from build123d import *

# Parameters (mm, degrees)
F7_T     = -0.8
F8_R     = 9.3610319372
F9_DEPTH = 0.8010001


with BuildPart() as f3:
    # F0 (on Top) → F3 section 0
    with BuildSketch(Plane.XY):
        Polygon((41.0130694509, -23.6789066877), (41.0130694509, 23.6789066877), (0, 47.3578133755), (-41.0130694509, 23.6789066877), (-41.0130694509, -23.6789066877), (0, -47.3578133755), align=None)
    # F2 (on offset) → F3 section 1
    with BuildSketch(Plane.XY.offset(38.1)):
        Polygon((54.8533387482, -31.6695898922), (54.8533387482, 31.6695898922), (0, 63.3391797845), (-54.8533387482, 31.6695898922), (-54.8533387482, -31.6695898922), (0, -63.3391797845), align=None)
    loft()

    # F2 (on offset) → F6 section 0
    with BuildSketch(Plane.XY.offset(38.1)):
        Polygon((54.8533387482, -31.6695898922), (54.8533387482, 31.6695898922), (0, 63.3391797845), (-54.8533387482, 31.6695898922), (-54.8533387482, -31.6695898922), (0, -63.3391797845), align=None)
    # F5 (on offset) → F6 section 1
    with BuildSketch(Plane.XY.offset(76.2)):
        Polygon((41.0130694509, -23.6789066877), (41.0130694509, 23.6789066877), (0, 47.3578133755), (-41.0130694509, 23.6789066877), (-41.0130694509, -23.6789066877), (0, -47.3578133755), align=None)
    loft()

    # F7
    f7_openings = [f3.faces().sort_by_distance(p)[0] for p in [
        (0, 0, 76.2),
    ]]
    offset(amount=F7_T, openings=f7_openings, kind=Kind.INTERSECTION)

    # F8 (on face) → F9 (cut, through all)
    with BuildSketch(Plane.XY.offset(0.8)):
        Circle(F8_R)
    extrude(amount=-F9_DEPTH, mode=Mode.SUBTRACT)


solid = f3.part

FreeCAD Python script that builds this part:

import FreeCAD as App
import Part
import Sketcher
Q = App.Units.Quantity


def faces_at(feature, points):
    """Names of the faces that lie closest to the given points."""
    faces = feature.Shape.Faces
    near = lambda p: min(range(len(faces)), key=lambda i: faces[i].distToShape(Part.Vertex(*p))[0])
    return sorted({f"Face{near(p) + 1}" for p in points})

doc = App.newDocument("Part")
body = doc.addObject("PartDesign::Body", "Body")

# Sketch on XY plane
sketch1 = body.newObject("Sketcher::SketchObject", "Sketch")
sketch1.AttachmentSupport = (doc.getObject("XY_Plane"), [""])
sketch1.MapMode = "FlatFace"
sketch1.addGeometry([
    Part.LineSegment(App.Vector(41.013069, -23.678907, 0), App.Vector(41.013069, 23.678907, 0)),  # 0
    Part.LineSegment(App.Vector(41.013069, 23.678907, 0), App.Vector(0, 47.357813, 0)),  # 1
    Part.LineSegment(App.Vector(0, 47.357813, 0), App.Vector(-41.013069, 23.678907, 0)),  # 2
    Part.LineSegment(App.Vector(-41.013069, 23.678907, 0), App.Vector(-41.013069, -23.678907, 0)),  # 3
    Part.LineSegment(App.Vector(-41.013069, -23.678907, 0), App.Vector(0, -47.357813, 0)),  # 4
    Part.LineSegment(App.Vector(0, -47.357813, 0), App.Vector(41.013069, -23.678907, 0)),  # 5
], False)
sketch1.addConstraint([
    Sketcher.Constraint("Coincident", 0, 2, 1, 1),
    Sketcher.Constraint("Coincident", 1, 2, 2, 1),
    Sketcher.Constraint("Coincident", 2, 2, 3, 1),
    Sketcher.Constraint("Coincident", 3, 2, 4, 1),
    Sketcher.Constraint("Coincident", 4, 2, 5, 1),
    Sketcher.Constraint("Coincident", 5, 2, 0, 1),
    Sketcher.Constraint("Vertical", 0),
    Sketcher.Constraint("Vertical", 3),
    Sketcher.Constraint("Symmetric", 0, 2, 3, 2, -1, 1),
    Sketcher.Constraint("Symmetric", 1, 2, 4, 2, -1, 1),
    Sketcher.Constraint("PointOnObject", 1, 2, -2),
    Sketcher.Constraint("Parallel", 2, 5),
    Sketcher.Constraint("Horizontal", 0, 2, 2, 2),
    Sketcher.Constraint("Angle", 1, Q("150 deg")),
    Sketcher.Constraint("DistanceY", 0, 1, 0, 2, Q("47.357813 mm")),
    Sketcher.Constraint("DistanceX", -1, 1, 0, 2, Q("41.013069 mm")),
])

# Sketch on XY plane
sketch2 = body.newObject("Sketcher::SketchObject", "Sketch001")
sketch2.AttachmentSupport = (doc.getObject("XY_Plane"), [""])
sketch2.MapMode = "FlatFace"
sketch2.AttachmentOffset = App.Placement(App.Vector(0, 0, 38.1), App.Rotation())
sketch2.addGeometry([
    Part.LineSegment(App.Vector(54.853339, -31.66959, 0), App.Vector(54.853339, 31.66959, 0)),  # 0
    Part.LineSegment(App.Vector(54.853339, 31.66959, 0), App.Vector(0, 63.33918, 0)),  # 1
    Part.LineSegment(App.Vector(0, 63.33918, 0), App.Vector(-54.853339, 31.66959, 0)),  # 2
    Part.LineSegment(App.Vector(-54.853339, 31.66959, 0), App.Vector(-54.853339, -31.66959, 0)),  # 3
    Part.LineSegment(App.Vector(-54.853339, -31.66959, 0), App.Vector(0, -63.33918, 0)),  # 4
    Part.LineSegment(App.Vector(0, -63.33918, 0), App.Vector(54.853339, -31.66959, 0)),  # 5
], False)
sketch2.addConstraint([
    Sketcher.Constraint("Coincident", 0, 2, 1, 1),
    Sketcher.Constraint("Coincident", 1, 2, 2, 1),
    Sketcher.Constraint("Coincident", 2, 2, 3, 1),
    Sketcher.Constraint("Coincident", 3, 2, 4, 1),
    Sketcher.Constraint("Coincident", 4, 2, 5, 1),
    Sketcher.Constraint("Coincident", 5, 2, 0, 1),
    Sketcher.Constraint("Vertical", 0),
    Sketcher.Constraint("Vertical", 3),
    Sketcher.Constraint("Symmetric", 0, 2, 3, 2, -1, 1),
    Sketcher.Constraint("Symmetric", 1, 2, 4, 2, -1, 1),
    Sketcher.Constraint("PointOnObject", 1, 2, -2),
    Sketcher.Constraint("Parallel", 2, 5),
    Sketcher.Constraint("Horizontal", 0, 2, 2, 2),
    Sketcher.Constraint("Angle", 1, Q("150 deg")),
    Sketcher.Constraint("DistanceY", 0, 1, 0, 2, Q("63.33918 mm")),
    Sketcher.Constraint("Distance", 1, Q("63.33918 mm")),
])

additiveloft = body.newObject("PartDesign::AdditiveLoft", "AdditiveLoft")
additiveloft.Profile = sketch1
additiveloft.Sections = [sketch2]

# Sketch on XY plane
sketch3 = body.newObject("Sketcher::SketchObject", "Sketch002")
sketch3.AttachmentSupport = (doc.getObject("XY_Plane"), [""])
sketch3.MapMode = "FlatFace"
sketch3.AttachmentOffset = App.Placement(App.Vector(0, 0, 38.1), App.Rotation())
sketch3.addGeometry([
    Part.LineSegment(App.Vector(54.853339, -31.66959, 0), App.Vector(54.853339, 31.66959, 0)),  # 0
    Part.LineSegment(App.Vector(54.853339, 31.66959, 0), App.Vector(0, 63.33918, 0)),  # 1
    Part.LineSegment(App.Vector(0, 63.33918, 0), App.Vector(-54.853339, 31.66959, 0)),  # 2
    Part.LineSegment(App.Vector(-54.853339, 31.66959, 0), App.Vector(-54.853339, -31.66959, 0)),  # 3
    Part.LineSegment(App.Vector(-54.853339, -31.66959, 0), App.Vector(0, -63.33918, 0)),  # 4
    Part.LineSegment(App.Vector(0, -63.33918, 0), App.Vector(54.853339, -31.66959, 0)),  # 5
], False)
sketch3.addConstraint([
    Sketcher.Constraint("Coincident", 0, 2, 1, 1),
    Sketcher.Constraint("Coincident", 1, 2, 2, 1),
    Sketcher.Constraint("Coincident", 2, 2, 3, 1),
    Sketcher.Constraint("Coincident", 3, 2, 4, 1),
    Sketcher.Constraint("Coincident", 4, 2, 5, 1),
    Sketcher.Constraint("Coincident", 5, 2, 0, 1),
    Sketcher.Constraint("Vertical", 0),
    Sketcher.Constraint("Vertical", 3),
    Sketcher.Constraint("Symmetric", 0, 2, 3, 2, -1, 1),
    Sketcher.Constraint("Symmetric", 1, 2, 4, 2, -1, 1),
    Sketcher.Constraint("PointOnObject", 1, 2, -2),
    Sketcher.Constraint("Parallel", 2, 5),
    Sketcher.Constraint("Horizontal", 0, 2, 2, 2),
    Sketcher.Constraint("Angle", 1, Q("150 deg")),
    Sketcher.Constraint("DistanceY", 0, 1, 0, 2, Q("63.33918 mm")),
    Sketcher.Constraint("Distance", 1, Q("63.33918 mm")),
])

# Sketch on XY plane
sketch4 = body.newObject("Sketcher::SketchObject", "Sketch003")
sketch4.AttachmentSupport = (doc.getObject("XY_Plane"), [""])
sketch4.MapMode = "FlatFace"
sketch4.AttachmentOffset = App.Placement(App.Vector(0, 0, 76.2), App.Rotation())
sketch4.addGeometry([
    Part.LineSegment(App.Vector(41.013069, -23.678907, 0), App.Vector(41.013069, 23.678907, 0)),  # 0
    Part.LineSegment(App.Vector(41.013069, 23.678907, 0), App.Vector(0, 47.357813, 0)),  # 1
    Part.LineSegment(App.Vector(0, 47.357813, 0), App.Vector(-41.013069, 23.678907, 0)),  # 2
    Part.LineSegment(App.Vector(-41.013069, 23.678907, 0), App.Vector(-41.013069, -23.678907, 0)),  # 3
    Part.LineSegment(App.Vector(-41.013069, -23.678907, 0), App.Vector(0, -47.357813, 0)),  # 4
    Part.LineSegment(App.Vector(0, -47.357813, 0), App.Vector(41.013069, -23.678907, 0)),  # 5
], False)
sketch4.addConstraint([
    Sketcher.Constraint("Coincident", 0, 2, 1, 1),
    Sketcher.Constraint("Coincident", 1, 2, 2, 1),
    Sketcher.Constraint("Coincident", 2, 2, 3, 1),
    Sketcher.Constraint("Coincident", 3, 2, 4, 1),
    Sketcher.Constraint("Coincident", 4, 2, 5, 1),
    Sketcher.Constraint("Coincident", 5, 2, 0, 1),
    Sketcher.Constraint("Vertical", 0),
    Sketcher.Constraint("Vertical", 3),
    Sketcher.Constraint("Symmetric", 0, 2, 3, 2, -1, 1),
    Sketcher.Constraint("Symmetric", 1, 2, 4, 2, -1, 1),
    Sketcher.Constraint("PointOnObject", 1, 2, -2),
    Sketcher.Constraint("Parallel", 2, 5),
    Sketcher.Constraint("Horizontal", 0, 2, 2, 2),
    Sketcher.Constraint("Angle", 1, Q("150 deg")),
    Sketcher.Constraint("DistanceY", 0, 1, 0, 2, Q("47.357813 mm")),
    Sketcher.Constraint("DistanceX", -1, 1, 0, 2, Q("41.013069 mm")),
])

additiveloft2 = body.newObject("PartDesign::AdditiveLoft", "AdditiveLoft001")
additiveloft2.Profile = sketch3
additiveloft2.Sections = [sketch4]
doc.recompute()

thickness = body.newObject("PartDesign::Thickness", "Thickness")
thickness.Base = (additiveloft2, faces_at(additiveloft2, [(0, 0, 76.2)]))
thickness.Value = 0.8
thickness.Reversed = True
thickness.Join = "Intersection"

# Sketch on XY plane
sketch5 = body.newObject("Sketcher::SketchObject", "Sketch004")
sketch5.AttachmentSupport = (doc.getObject("XY_Plane"), [""])
sketch5.MapMode = "FlatFace"
sketch5.AttachmentOffset = App.Placement(App.Vector(0, 0, 0.8), App.Rotation())
sketch5.addGeometry(Part.Circle(App.Vector(0, 0, 0), App.Vector(0, 0, 1), 9.361032), False)
sketch5.addConstraint([
    Sketcher.Constraint("Coincident", 0, 3, -1, 1),
    Sketcher.Constraint("Diameter", 0, Q("18.722064 mm")),
])
pocket1 = body.newObject("PartDesign::Pocket", "Pocket")
pocket1.Profile = sketch5
pocket1.Type = "ThroughAll"

doc.recompute()
